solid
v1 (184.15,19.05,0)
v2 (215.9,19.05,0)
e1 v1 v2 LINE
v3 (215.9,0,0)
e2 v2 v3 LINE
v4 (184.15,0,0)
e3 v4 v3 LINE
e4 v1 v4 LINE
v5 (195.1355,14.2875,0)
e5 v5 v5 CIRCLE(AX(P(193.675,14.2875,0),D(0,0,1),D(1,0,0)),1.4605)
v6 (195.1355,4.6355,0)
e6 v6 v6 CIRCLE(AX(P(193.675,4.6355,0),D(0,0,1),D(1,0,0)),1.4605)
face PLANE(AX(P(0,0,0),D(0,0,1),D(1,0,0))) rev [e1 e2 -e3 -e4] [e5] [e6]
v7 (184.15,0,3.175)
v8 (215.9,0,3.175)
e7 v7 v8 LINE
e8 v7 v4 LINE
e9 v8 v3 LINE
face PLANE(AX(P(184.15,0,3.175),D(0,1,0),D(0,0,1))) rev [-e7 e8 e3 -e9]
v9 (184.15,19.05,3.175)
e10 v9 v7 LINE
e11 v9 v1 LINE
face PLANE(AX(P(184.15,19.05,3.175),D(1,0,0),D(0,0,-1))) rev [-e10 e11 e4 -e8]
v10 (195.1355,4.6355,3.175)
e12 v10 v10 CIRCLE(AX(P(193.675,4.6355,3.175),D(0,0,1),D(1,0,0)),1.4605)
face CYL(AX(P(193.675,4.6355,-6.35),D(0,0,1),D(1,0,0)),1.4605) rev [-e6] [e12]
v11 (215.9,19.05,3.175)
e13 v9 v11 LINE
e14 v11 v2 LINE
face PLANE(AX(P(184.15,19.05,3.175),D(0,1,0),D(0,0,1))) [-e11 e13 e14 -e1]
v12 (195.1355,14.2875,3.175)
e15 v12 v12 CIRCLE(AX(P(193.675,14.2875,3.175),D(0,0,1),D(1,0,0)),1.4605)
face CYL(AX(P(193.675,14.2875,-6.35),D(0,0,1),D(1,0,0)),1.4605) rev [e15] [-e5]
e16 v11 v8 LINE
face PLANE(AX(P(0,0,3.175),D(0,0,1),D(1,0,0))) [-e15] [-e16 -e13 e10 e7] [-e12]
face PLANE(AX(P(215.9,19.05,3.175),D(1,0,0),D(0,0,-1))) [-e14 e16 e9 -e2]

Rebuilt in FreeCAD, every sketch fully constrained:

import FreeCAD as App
import Part
import Sketcher
Q = App.Units.Quantity

doc = App.newDocument("Part")
body = doc.addObject("PartDesign::Body", "Body")

# Sketch on XY plane
sketch1 = body.newObject("Sketcher::SketchObject", "Sketch")
sketch1.AttachmentSupport = (doc.getObject("XY_Plane"), [""])
sketch1.MapMode = "FlatFace"
sketch1.addGeometry(Part.LineSegment(App.Vector(184.15, 19.05, 0), App.Vector(184.15, 0, 0)), False)
sketch1.addGeometry(Part.LineSegment(App.Vector(184.15, 0, 0), App.Vector(215.9, 0, 0)), False)
sketch1.addGeometry(Part.LineSegment(App.Vector(215.9, 0, 0), App.Vector(215.9, 19.05, 0)), False)
sketch1.addGeometry(Part.LineSegment(App.Vector(215.9, 19.05, 0), App.Vector(184.15, 19.05, 0)), False)
sketch1.addConstraint(Sketcher.Constraint("Coincident", 0, 2, 1, 1))
sketch1.addConstraint(Sketcher.Constraint("Coincident", 1, 2, 2, 1))
sketch1.addConstraint(Sketcher.Constraint("Coincident", 2, 2, 3, 1))
sketch1.addConstraint(Sketcher.Constraint("Coincident", 3, 2, 0, 1))
sketch1.addConstraint(Sketcher.Constraint("Vertical", 0))
sketch1.addConstraint(Sketcher.Constraint("Horizontal", 1))
sketch1.addConstraint(Sketcher.Constraint("Vertical", 2))
sketch1.addConstraint(Sketcher.Constraint("Horizontal", 3))
sketch1.addConstraint(Sketcher.Constraint("PointOnObject", 0, 2, -1))
sketch1.addConstraint(Sketcher.Constraint("DistanceX", 1, 1, 1, 2, Q("1.25 in")))
sketch1.addConstraint(Sketcher.Constraint("DistanceY", 0, 2, 0, 1, Q("0.75 in")))
sketch1.addConstraint(Sketcher.Constraint("DistanceX", -1, 1, 1, 2, Q("8.5 in")))
pad1 = body.newObject("PartDesign::Pad", "Pad")
pad1.Profile = sketch1
pad1.Length = Q("0.125 in")

# Sketch on XY plane
sketch2 = body.newObject("Sketcher::SketchObject", "Sketch001")
sketch2.AttachmentSupport = (doc.getObject("XY_Plane"), [""])
sketch2.MapMode = "FlatFace"
sketch2.AttachmentOffset = App.Placement(App.Vector(0, 0, 0.125 * 25.4), App.Rotation())
sketch2.addGeometry(Part.Circle(App.Vector(193.675, 14.2875, 0), App.Vector(0, 0, 1), 1.4605), False)
sketch2.addGeometry(Part.Circle(App.Vector(193.675, 4.6355, 0), App.Vector(0, 0, 1), 1.4605), False)
sketch2.addConstraint(Sketcher.Constraint("Equal", 0, 1))
sketch2.addConstraint(Sketcher.Constraint("Vertical", 0, 3, 1, 3))
sketch2.addConstraint(Sketcher.Constraint("Diameter", 0, Q("0.115 in")))
sketch2.addConstraint(Sketcher.Constraint("DistanceY", 1, 3, 0, 3, Q("0.38 in")))
sketch2.addConstraint(Sketcher.Constraint("DistanceX", -1, 1, 0, 3, Q("7.625 in")))
sketch2.addConstraint(Sketcher.Constraint("DistanceY", -1, 1, 0, 3, Q("0.5625 in")))
pocket1 = body.newObject("PartDesign::Pocket", "Pocket")
pocket1.Profile = sketch2
pocket1.Length = Q("0.375 in")

doc.recompute()
